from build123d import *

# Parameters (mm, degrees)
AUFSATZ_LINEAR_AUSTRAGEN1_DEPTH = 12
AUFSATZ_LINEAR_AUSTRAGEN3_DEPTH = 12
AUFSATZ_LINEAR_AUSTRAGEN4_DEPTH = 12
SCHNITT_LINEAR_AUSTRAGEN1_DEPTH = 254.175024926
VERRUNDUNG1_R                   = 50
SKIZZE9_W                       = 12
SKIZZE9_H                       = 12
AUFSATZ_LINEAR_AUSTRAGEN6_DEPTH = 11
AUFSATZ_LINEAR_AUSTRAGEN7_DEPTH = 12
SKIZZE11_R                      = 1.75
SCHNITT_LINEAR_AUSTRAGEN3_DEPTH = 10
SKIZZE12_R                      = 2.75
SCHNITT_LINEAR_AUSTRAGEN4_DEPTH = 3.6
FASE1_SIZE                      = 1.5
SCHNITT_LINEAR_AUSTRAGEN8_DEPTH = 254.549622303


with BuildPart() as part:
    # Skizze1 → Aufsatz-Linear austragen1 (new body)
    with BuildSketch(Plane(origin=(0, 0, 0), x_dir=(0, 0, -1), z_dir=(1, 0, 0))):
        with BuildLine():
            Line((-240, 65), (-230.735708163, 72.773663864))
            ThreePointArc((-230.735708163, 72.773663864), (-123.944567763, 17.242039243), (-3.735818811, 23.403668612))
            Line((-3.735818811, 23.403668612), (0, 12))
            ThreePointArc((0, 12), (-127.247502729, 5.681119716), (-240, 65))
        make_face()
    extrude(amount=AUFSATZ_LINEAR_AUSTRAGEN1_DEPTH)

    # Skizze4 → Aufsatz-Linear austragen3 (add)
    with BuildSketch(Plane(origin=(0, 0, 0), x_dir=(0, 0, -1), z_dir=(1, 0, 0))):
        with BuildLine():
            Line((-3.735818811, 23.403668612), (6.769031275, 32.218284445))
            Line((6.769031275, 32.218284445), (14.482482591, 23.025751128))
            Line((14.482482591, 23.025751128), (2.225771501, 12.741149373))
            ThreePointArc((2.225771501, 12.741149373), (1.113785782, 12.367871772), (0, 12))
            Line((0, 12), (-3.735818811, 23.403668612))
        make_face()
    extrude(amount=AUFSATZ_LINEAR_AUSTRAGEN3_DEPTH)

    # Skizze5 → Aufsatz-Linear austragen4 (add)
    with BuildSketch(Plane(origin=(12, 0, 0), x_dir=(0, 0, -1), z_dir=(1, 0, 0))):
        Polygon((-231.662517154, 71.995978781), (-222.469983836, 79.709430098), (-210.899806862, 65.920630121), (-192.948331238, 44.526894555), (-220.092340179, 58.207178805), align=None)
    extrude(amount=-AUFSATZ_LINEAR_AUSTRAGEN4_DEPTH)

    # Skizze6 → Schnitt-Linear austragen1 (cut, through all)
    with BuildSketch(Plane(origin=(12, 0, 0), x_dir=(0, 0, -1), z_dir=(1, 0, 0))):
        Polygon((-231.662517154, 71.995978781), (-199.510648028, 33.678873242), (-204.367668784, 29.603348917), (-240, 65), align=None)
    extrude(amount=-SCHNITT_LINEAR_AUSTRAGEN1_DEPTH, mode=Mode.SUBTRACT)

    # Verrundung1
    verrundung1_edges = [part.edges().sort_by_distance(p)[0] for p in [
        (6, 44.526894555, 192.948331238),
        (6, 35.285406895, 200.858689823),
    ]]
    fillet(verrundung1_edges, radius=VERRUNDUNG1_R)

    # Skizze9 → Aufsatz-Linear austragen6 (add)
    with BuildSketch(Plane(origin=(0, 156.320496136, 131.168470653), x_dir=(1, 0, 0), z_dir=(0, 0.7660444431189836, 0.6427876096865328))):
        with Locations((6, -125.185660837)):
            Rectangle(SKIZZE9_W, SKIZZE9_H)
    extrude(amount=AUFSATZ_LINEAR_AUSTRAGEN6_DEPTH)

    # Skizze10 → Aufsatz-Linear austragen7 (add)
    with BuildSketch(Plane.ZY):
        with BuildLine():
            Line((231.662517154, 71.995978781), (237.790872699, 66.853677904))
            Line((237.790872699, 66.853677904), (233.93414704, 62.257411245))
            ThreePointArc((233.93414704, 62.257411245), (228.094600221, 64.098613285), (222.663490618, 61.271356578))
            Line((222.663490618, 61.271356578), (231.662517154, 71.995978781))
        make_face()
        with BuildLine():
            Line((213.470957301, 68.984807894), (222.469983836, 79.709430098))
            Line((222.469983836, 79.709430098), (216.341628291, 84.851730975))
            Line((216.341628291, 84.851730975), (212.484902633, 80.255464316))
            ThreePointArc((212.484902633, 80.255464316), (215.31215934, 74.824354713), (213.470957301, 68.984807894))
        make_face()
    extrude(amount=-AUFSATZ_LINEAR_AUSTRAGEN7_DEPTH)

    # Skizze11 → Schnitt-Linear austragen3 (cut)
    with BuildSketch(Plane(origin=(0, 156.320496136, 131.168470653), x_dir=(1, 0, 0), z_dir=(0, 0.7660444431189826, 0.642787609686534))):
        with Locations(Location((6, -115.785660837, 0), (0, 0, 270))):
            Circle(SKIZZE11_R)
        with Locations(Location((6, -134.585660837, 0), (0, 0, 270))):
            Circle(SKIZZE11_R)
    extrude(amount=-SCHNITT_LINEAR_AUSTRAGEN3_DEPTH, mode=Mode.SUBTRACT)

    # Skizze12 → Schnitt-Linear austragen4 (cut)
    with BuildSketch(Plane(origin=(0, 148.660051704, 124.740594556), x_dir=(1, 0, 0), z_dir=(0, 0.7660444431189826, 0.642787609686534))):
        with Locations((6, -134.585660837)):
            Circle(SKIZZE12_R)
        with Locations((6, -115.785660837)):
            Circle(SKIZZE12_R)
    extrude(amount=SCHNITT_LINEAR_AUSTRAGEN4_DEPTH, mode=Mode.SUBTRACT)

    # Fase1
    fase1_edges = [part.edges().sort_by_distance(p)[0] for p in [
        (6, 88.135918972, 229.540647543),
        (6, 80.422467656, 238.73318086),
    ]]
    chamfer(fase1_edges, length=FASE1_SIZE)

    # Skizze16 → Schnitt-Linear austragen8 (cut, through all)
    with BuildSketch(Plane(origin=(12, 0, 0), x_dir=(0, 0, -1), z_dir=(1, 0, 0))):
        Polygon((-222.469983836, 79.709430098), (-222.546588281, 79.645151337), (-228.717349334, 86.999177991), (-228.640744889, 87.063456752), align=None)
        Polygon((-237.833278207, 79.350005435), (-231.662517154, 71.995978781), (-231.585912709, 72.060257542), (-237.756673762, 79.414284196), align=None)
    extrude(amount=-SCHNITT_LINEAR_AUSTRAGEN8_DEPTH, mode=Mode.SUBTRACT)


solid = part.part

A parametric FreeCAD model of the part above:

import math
import FreeCAD as App
import Part
import Sketcher

V = App.Vector
Q = App.Units.Quantity


def edges_at(feature, points):
    """Names of the edges that pass closest to the given points."""
    edges = feature.Shape.Edges
    near = lambda p: min(range(len(edges)), key=lambda i: edges[i].distToShape(Part.Vertex(*p))[0])
    return sorted({f"Edge{near(p) + 1}" for p in points})

doc = App.newDocument("Part")
body = doc.addObject("PartDesign::Body", "Body")

sketch1 = body.newObject("Sketcher::SketchObject", "Sketch")
sketch1.AttachmentSupport = (doc.getObject("YZ_Plane"), [""])
sketch1.MapMode = "FlatFace"
sketch1.addGeometry([
    Part.LineSegment(V(73, 231, 0), V(65, 240, 0)),
    Part.ArcOfCircle(Part.Circle(V(241, 75, 0), V(0, 0, 1), 241), math.radians(137), math.radians(198)),
    Part.LineSegment(V(12, 0, 0), V(23, 4, 0)),
    Part.ArcOfCircle(Part.Circle(V(241, 75, 0), V(0, 0, 1), 229), math.radians(137), math.radians(198)),
], False)
sketch1.addConstraint([
    Sketcher.Constraint("Coincident", 0, 2, 1, 1),
    Sketcher.Constraint("Coincident", 1, 2, 2, 1),
    Sketcher.Constraint("Coincident", 2, 2, 3, 2),
    Sketcher.Constraint("Coincident", 3, 1, 0, 1),
    Sketcher.Constraint("Coincident", 3, 3, 1, 3),
    Sketcher.Constraint("PointOnObject", 1, 2, -1),
    Sketcher.Constraint("Angle", 0, Q("130 deg")),
    Sketcher.Constraint("Distance", 2, Q("12 mm")),
    Sketcher.Constraint("DistanceX", -1, 1, 0, 2, Q("65 mm")),
    Sketcher.Constraint("DistanceY", -1, 1, 0, 2, Q("240 mm")),
    Sketcher.Constraint("DistanceX", -1, 1, 1, 2, Q("12 mm")),
    Sketcher.Constraint("Radius", 1, Q("241.476472 mm")),
    Sketcher.Constraint("DistanceX", -1, 1, 2, 2, Q("23.403669 mm")),
])
pad1 = body.newObject("PartDesign::Pad", "Pad")
pad1.Profile = sketch1
pad1.Length = 12

sketch2 = body.newObject("Sketcher::SketchObject", "Sketch001")
sketch2.AttachmentSupport = (doc.getObject("YZ_Plane"), [""])
sketch2.MapMode = "FlatFace"
sketch2.addGeometry([
    Part.LineSegment(V(32.2, -6.8, 0), V(23.4, 3.7, 0)),
    Part.LineSegment(V(23.4, 3.7, 0), V(12, 0, 0)),
    Part.ArcOfCircle(Part.Circle(V(241.5, 75.2, 0), V(0, 0, 1), 241.5), math.radians(-161.86), math.radians(-161.3)),
    Part.LineSegment(V(12.7, -2.2, 0), V(23, -14.5, 0)),
    Part.LineSegment(V(23, -14.5, 0), V(32.2, -6.8, 0)),
], False)
sketch2.addConstraint([
    Sketcher.Constraint("Coincident", 0, 2, 1, 1),
    Sketcher.Constraint("Coincident", 1, 2, 2, 1),
    Sketcher.Constraint("Coincident", 2, 2, 3, 1),
    Sketcher.Constraint("Coincident", 3, 2, 4, 1),
    Sketcher.Constraint("Coincident", 4, 2, 0, 1),
    Sketcher.Constraint("PointOnObject", 1, 2, -1),
    Sketcher.Constraint("Parallel", 0, 3),
    Sketcher.Constraint("Perpendicular", 3, 4),
    Sketcher.Constraint("Equal", 1, 4),
    Sketcher.Constraint("Angle", 0, Q("130 deg")),
    Sketcher.Constraint("Distance", 1, Q("12 mm")),
    Sketcher.Constraint("Distance", 3, Q("16 mm")),
    Sketcher.Constraint("DistanceX", -1, 1, 1, 2, Q("12 mm")),
    Sketcher.Constraint("Radius", 2, Q("241.476475 mm")),
    Sketcher.Constraint("DistanceY", 2, 2, 2, 3, Q("77.401802 mm")),
    Sketcher.Constraint("DistanceY", -1, 1, 2, 3, Q("75.17603 mm")),
])
pad2 = body.newObject("PartDesign::Pad", "Pad001")
pad2.Profile = sketch2
pad2.Length = 12

sketch3 = body.newObject("Sketcher::SketchObject", "Sketch002")
sketch3.AttachmentSupport = (doc.getObject("YZ_Plane"), [""])
sketch3.MapMode = "FlatFace"
sketch3.AttachmentOffset = App.Placement(V(0, 0, 12), App.Rotation())
sketch3.addGeometry([
    Part.LineSegment(V(80, 222, 0), V(72, 232, 0)),
    Part.LineSegment(V(72, 232, 0), V(58, 220, 0)),
    Part.LineSegment(V(58, 220, 0), V(45, 193, 0)),
    Part.LineSegment(V(45, 193, 0), V(66, 211, 0)),
    Part.LineSegment(V(66, 211, 0), V(80, 222, 0)),
], False)
sketch3.addConstraint([
    Sketcher.Constraint("Coincident", 0, 2, 1, 1),
    Sketcher.Constraint("Coincident", 1, 2, 2, 1),
    Sketcher.Constraint("Coincident", 2, 2, 3, 1),
    Sketcher.Constraint("Coincident", 3, 2, 4, 1),
    Sketcher.Constraint("Coincident", 4, 2, 0, 1),
    Sketcher.Constraint("Perpendicular", 0, 1),
    Sketcher.Constraint("Parallel", 1, 3),
    Sketcher.Constraint("Parallel", 3, 4),
    Sketcher.Constraint("Equal", 1, 4),
    Sketcher.Constraint("Angle", 0, Q("130 deg")),
    Sketcher.Constraint("Distance", 0, Q("12 mm")),
    Sketcher.Constraint("Distance", 1, Q("18 mm")),
    Sketcher.Constraint("Distance", 3, Q("27.927538 mm")),
    Sketcher.Constraint("DistanceX", -1, 1, 0, 2, Q("71.995979 mm")),
    Sketcher.Constraint("DistanceY", -1, 1, 1, 2, Q("220.09234 mm")),
])
pad3 = body.newObject("PartDesign::Pad", "Pad002")
pad3.Profile = sketch3
pad3.Length = 12
pad3.Reversed = True

sketch4 = body.newObject("Sketcher::SketchObject", "Sketch003")
sketch4.AttachmentSupport = (doc.getObject("YZ_Plane"), [""])
sketch4.MapMode = "FlatFace"
sketch4.AttachmentOffset = App.Placement(V(0, 0, 12), App.Rotation())
sketch4.addGeometry([
    Part.LineSegment(V(34, 200, 0), V(72, 232, 0)),
    Part.LineSegment(V(72, 232, 0), V(65, 240, 0)),
    Part.LineSegment(V(65, 240, 0), V(30, 204, 0)),
    Part.LineSegment(V(30, 204, 0), V(34, 200, 0)),
], False)
sketch4.addConstraint([
    Sketcher.Constraint("Coincident", 0, 2, 1, 1),
    Sketcher.Constraint("Coincident", 1, 2, 2, 1),
    Sketcher.Constraint("Coincident", 2, 2, 3, 1),
    Sketcher.Constraint("Coincident", 3, 2, 0, 1),
    Sketcher.Constraint("Perpendicular", 0, 1),
    Sketcher.Constraint("Parallel", 1, 3),
    Sketcher.Constraint("Angle", 0, Q("40 deg")),
    Sketcher.Constraint("DistanceX", -1, 1, 1, 2, Q("65 mm")),
    Sketcher.Constraint("DistanceY", -1, 1, 1, 2, Q("240 mm")),
    Sketcher.Constraint("Distance", 0, Q("50.019429 mm")),
    Sketcher.Constraint("Distance", 1, Q("10.883811 mm")),
    Sketcher.Constraint("Distance", 2, Q("50.225352 mm")),
])
pocket1 = body.newObject("PartDesign::Pocket", "Pocket")
pocket1.Profile = sketch4
pocket1.Type = "ThroughAll"
doc.recompute()

fillet = body.newObject("PartDesign::Fillet", "Fillet")
fillet.Base = (pocket1, edges_at(pocket1, [(6, 44.527, 192.948), (6, 35.285, 200.859)]))
fillet.Radius = 50

sketch5 = body.newObject("Sketcher::SketchObject", "Sketch004")
sketch5.Placement = App.Placement(V(0, 156.320496, 131.168471), App.Rotation(V(1, 0, 0), V(0, 0.64278761, -0.766044443), V(0, 0.766044443, 0.64278761), "ZXY"))
sketch5.addGeometry([
    Part.LineSegment(V(0, -119, 0), V(0, -131, 0)),
    Part.LineSegment(V(0, -131, 0), V(12, -131, 0)),
    Part.LineSegment(V(12, -131, 0), V(12, -119, 0)),
    Part.LineSegment(V(12, -119, 0), V(0, -119, 0)),
], False)
sketch5.addConstraint([
    Sketcher.Constraint("Coincident", 0, 2, 1, 1),
    Sketcher.Constraint("Coincident", 1, 2, 2, 1),
    Sketcher.Constraint("Coincident", 2, 2, 3, 1),
    Sketcher.Constraint("Coincident", 3, 2, 0, 1),
    Sketcher.Constraint("Vertical", 0),
    Sketcher.Constraint("Horizontal", 1),
    Sketcher.Constraint("Vertical", 2),
    Sketcher.Constraint("Horizontal", 3),
    Sketcher.Constraint("PointOnObject", 0, 2, -2),
    Sketcher.Constraint("Equal", 3, 0),
    Sketcher.Constraint("DistanceX", 1, 1, 1, 2, Q("12 mm")),
    Sketcher.Constraint("DistanceY", 0, 2, -1, 1, Q("131.185661 mm")),
])
pad4 = body.newObject("PartDesign::Pad", "Pad003")
pad4.Profile = sketch5
pad4.Length = 11

sketch6 = body.newObject("Sketcher::SketchObject", "Sketch005")
sketch6.AttachmentSupport = (doc.getObject("YZ_Plane"), [""])
sketch6.MapMode = "FlatFace"
sketch6.addGeometry([
    Part.LineSegment(V(67, 238, 0), V(72, 232, 0)),
    Part.LineSegment(V(72, 232, 0), V(61, 223, 0)),
    Part.ArcOfCircle(Part.Circle(V(56, 229, 0), V(0, 0, 1), 8), math.radians(-50), math.radians(40)),
    Part.LineSegment(V(62, 234, 0), V(67, 238, 0)),
    Part.LineSegment(V(69, 213, 0), V(80, 222, 0)),
    Part.LineSegment(V(80, 222, 0), V(85, 216, 0)),
    Part.LineSegment(V(85, 216, 0), V(80, 212, 0)),
    Part.ArcOfCircle(Part.Circle(V(74, 207, 0), V(0, 0, 1), 8), math.radians(40), math.radians(130)),
], False)
sketch6.addConstraint([
    Sketcher.Constraint("Coincident", 0, 2, 1, 1),
    Sketcher.Constraint("Tangent", 1, 2, 2, 1),
    Sketcher.Constraint("Coincident", 2, 2, 3, 1),
    Sketcher.Constraint("Coincident", 3, 2, 0, 1),
    Sketcher.Constraint("Coincident", 4, 2, 5, 1),
    Sketcher.Constraint("Coincident", 5, 2, 6, 1),
    Sketcher.Constraint("Coincident", 6, 2, 7, 1),
    Sketcher.Constraint("Tangent", 7, 2, 4, 1),
    Sketcher.Constraint("Equal", 2, 7),
    Sketcher.Constraint("Perpendicular", 0, 1),
    Sketcher.Constraint("Parallel", 1, 3),
    Sketcher.Constraint("Parallel", 3, 4),
    Sketcher.Constraint("Perpendicular", 4, 5),
    Sketcher.Constraint("Perpendicular", 5, 6),
    Sketcher.Constraint("Equal", 1, 4),
    Sketcher.Constraint("Equal", 0, 5),
    Sketcher.Constraint("Radius", 2, Q("8 mm")),
    Sketcher.Constraint("Angle", 0, Q("-50 deg")),
    Sketcher.Constraint("Distance", 0, Q("8 mm")),
    Sketcher.Constraint("Distance", 1, Q("14 mm")),
    Sketcher.Constraint("DistanceY", -1, 1, 7, 3, Q("207.342602 mm")),
    Sketcher.Constraint("DistanceX", -1, 1, 7, 3, Q("74.127109 mm")),
    Sketcher.Constraint("DistanceX", -1, 1, 0, 2, Q("71.995979 mm")),
    Sketcher.Constraint("DistanceY", -1, 1, 1, 2, Q("222.663491 mm")),
])
pad5 = body.newObject("PartDesign::Pad", "Pad004")
pad5.Profile = sketch6
pad5.Length = 12

sketch7 = body.newObject("Sketcher::SketchObject", "Sketch006")
sketch7.Placement = App.Placement(V(0, 156.320496, 131.168471), App.Rotation(V(1, 0, 0), V(0, 0.64278761, -0.766044443), V(0, 0.766044443, 0.64278761), "ZXY"))
sketch7.addGeometry([
    Part.Circle(V(6, -115.8, 0), V(0, 0, 1), 1.8),
    Part.Circle(V(6, -134.6, 0), V(0, 0, 1), 1.8),
], False)
sketch7.addConstraint([
    Sketcher.Constraint("Equal", 0, 1),
    Sketcher.Constraint("Vertical", 0, 3, 1, 3),
    Sketcher.Constraint("Diameter", 0, Q("3.5 mm")),
    Sketcher.Constraint("DistanceX", -1, 1, 0, 3, Q("6 mm")),
    Sketcher.Constraint("DistanceY", 1, 3, 0, 3, Q("18.8 mm")),
    Sketcher.Constraint("DistanceY", 0, 3, -1, 1, Q("115.785661 mm")),
])
pocket2 = body.newObject("PartDesign::Pocket", "Pocket001")
pocket2.Profile = sketch7
pocket2.Length = 10

sketch8 = body.newObject("Sketcher::SketchObject", "Sketch007")
sketch8.Placement = App.Placement(V(0, 148.660052, 124.740595), App.Rotation(V(1, 0, 0), V(0, 0.64278761, -0.766044443), V(0, 0.766044443, 0.64278761), "ZXY"))
sketch8.addGeometry([
    Part.Circle(V(6, -134.6, 0), V(0, 0, 1), 2.8),
    Part.Circle(V(6, -115.8, 0), V(0, 0, 1), 2.8),
], False)
sketch8.addConstraint([
    Sketcher.Constraint("Equal", 0, 1),
    Sketcher.Constraint("Vertical", 0, 3, 1, 3),
    Sketcher.Constraint("Diameter", 0, Q("5.5 mm")),
    Sketcher.Constraint("DistanceX", -1, 1, 0, 3, Q("6 mm")),
    Sketcher.Constraint("DistanceY", 0, 3, 1, 3, Q("18.8 mm")),
    Sketcher.Constraint("DistanceY", 0, 3, -1, 1, Q("134.585661 mm")),
])
pocket3 = body.newObject("PartDesign::Pocket", "Pocket002")
pocket3.Profile = sketch8
pocket3.Length = 3.6
pocket3.Reversed = True
doc.recompute()

chamfer = body.newObject("PartDesign::Chamfer", "Chamfer")
chamfer.Base = (pocket3, edges_at(pocket3, [(6, 88.136, 229.541), (6, 80.422, 238.733)]))
chamfer.Size = 1.5

sketch9 = body.newObject("Sketcher::SketchObject", "Sketch008")
sketch9.AttachmentSupport = (doc.getObject("YZ_Plane"), [""])
sketch9.MapMode = "FlatFace"
sketch9.AttachmentOffset = App.Placement(V(0, 0, 12), App.Rotation())
sketch9.addGeometry([
    Part.LineSegment(V(79.65, 222.55, 0), V(79.71, 222.47, 0)),
    Part.LineSegment(V(79.71, 222.47, 0), V(87.06, 228.64, 0)),
    Part.LineSegment(V(87.06, 228.64, 0), V(87, 228.72, 0)),
    Part.LineSegment(V(87, 228.72, 0), V(79.65, 222.55, 0)),
    Part.LineSegment(V(79.35, 237.83, 0), V(72, 231.66, 0)),
    Part.LineSegment(V(72, 231.66, 0), V(72.06, 231.59, 0)),
    Part.LineSegment(V(72.06, 231.59, 0), V(79.41, 237.76, 0)),
    Part.LineSegment(V(79.41, 237.76, 0), V(79.35, 237.83, 0)),
], False)
sketch9.addConstraint([
    Sketcher.Constraint("Coincident", 0, 2, 1, 1),
    Sketcher.Constraint("Coincident", 1, 2, 2, 1),
    Sketcher.Constraint("Coincident", 2, 2, 3, 1),
    Sketcher.Constraint("Coincident", 3, 2, 0, 1),
    Sketcher.Constraint("Coincident", 4, 2, 5, 1),
    Sketcher.Constraint("Coincident", 5, 2, 6, 1),
    Sketcher.Constraint("Coincident", 6, 2, 7, 1),
    Sketcher.Constraint("Coincident", 7, 2, 4, 1),
    Sketcher.Constraint("Perpendicular", 0, 1),
    Sketcher.Constraint("Perpendicular", 1, 2),
    Sketcher.Constraint("Perpendicular", 2, 3),
    Sketcher.Constraint("Parallel", 3, 4),
    Sketcher.Constraint("Perpendicular", 4, 5),
    Sketcher.Constraint("Perpendicular", 5, 6),
    Sketcher.Constraint("Perpendicular", 6, 7),
    Sketcher.Constraint("Equal", 3, 4),
    Sketcher.Constraint("Equal", 2, 5),
    Sketcher.Constraint("Angle", 0, Q("-50 deg")),
    Sketcher.Constraint("Distance", 0, Q("0.1 mm")),
    Sketcher.Constraint("Distance", 1, Q("9.6 mm")),
    Sketcher.Constraint("DistanceX", 4, 2, 2, 2, Q("15.003199 mm")),
    Sketcher.Constraint("DistanceX", -1, 1, 0, 2, Q("79.70943 mm")),
    Sketcher.Constraint("DistanceY", -1, 1, 2, 2, Q("228.717349 mm")),
    Sketcher.Constraint("DistanceY", -1, 1, 7, 2, Q("237.833278 mm")),
])
pocket4 = body.newObject("PartDesign::Pocket", "Pocket003")
pocket4.Profile = sketch9
pocket4.Type = "ThroughAll"

doc.recompute()
